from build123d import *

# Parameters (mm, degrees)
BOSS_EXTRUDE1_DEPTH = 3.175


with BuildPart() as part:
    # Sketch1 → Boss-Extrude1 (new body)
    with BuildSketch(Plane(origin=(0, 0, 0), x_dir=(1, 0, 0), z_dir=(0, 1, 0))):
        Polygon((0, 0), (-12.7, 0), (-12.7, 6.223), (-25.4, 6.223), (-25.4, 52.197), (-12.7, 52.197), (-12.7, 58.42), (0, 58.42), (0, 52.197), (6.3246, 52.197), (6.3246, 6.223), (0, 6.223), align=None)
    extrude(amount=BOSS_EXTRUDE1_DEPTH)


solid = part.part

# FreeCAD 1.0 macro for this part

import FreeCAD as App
import Part
import Sketcher
from FreeCAD import Vector
Q = App.Units.Quantity

doc = App.newDocument("Part")
body = doc.addObject("PartDesign::Body", "Body")

sketch1 = body.newObject("Sketcher::SketchObject", "Sketch")
sketch1.AttachmentSupport = (doc.getObject("XZ_Plane"), [""])
sketch1.MapMode = "FlatFace"
sketch1.addGeometry(Part.LineSegment(Vector(-13, 0, 0), Vector(0, 0, 0)), False)
sketch1.addGeometry(Part.LineSegment(Vector(0, 0, 0), Vector(0, -6, 0)), False)
sketch1.addGeometry(Part.LineSegment(Vector(0, -6, 0), Vector(6, -6, 0)), False)
sketch1.addGeometry(Part.LineSegment(Vector(6, -6, 0), Vector(6, -52, 0)), False)
sketch1.addGeometry(Part.LineSegment(Vector(6, -52, 0), Vector(0, -52, 0)), False)
sketch1.addGeometry(Part.LineSegment(Vector(0, -52, 0), Vector(0, -58, 0)), False)
sketch1.addGeometry(Part.LineSegment(Vector(0, -58, 0), Vector(-13, -58, 0)), False)
sketch1.addGeometry(Part.LineSegment(Vector(-13, -58, 0), Vector(-13, -52, 0)), False)
sketch1.addGeometry(Part.LineSegment(Vector(-13, -52, 0), Vector(-25, -52, 0)), False)
sketch1.addGeometry(Part.LineSegment(Vector(-25, -52, 0), Vector(-25, -6, 0)), False)
sketch1.addGeometry(Part.LineSegment(Vector(-25, -6, 0), Vector(-13, -6, 0)), False)
sketch1.addGeometry(Part.LineSegment(Vector(-13, -6, 0), Vector(-13, 0, 0)), False)
sketch1.addConstraint(Sketcher.Constraint("Coincident", 0, 2, 1, 1))
sketch1.addConstraint(Sketcher.Constraint("Coincident", 1, 2, 2, 1))
sketch1.addConstraint(Sketcher.Constraint("Coincident", 2, 2, 3, 1))
sketch1.addConstraint(Sketcher.Constraint("Coincident", 3, 2, 4, 1))
sketch1.addConstraint(Sketcher.Constraint("Coincident", 4, 2, 5, 1))
sketch1.addConstraint(Sketcher.Constraint("Coincident", 5, 2, 6, 1))
sketch1.addConstraint(Sketcher.Constraint("Coincident", 6, 2, 7, 1))
sketch1.addConstraint(Sketcher.Constraint("Coincident", 7, 2, 8, 1))
sketch1.addConstraint(Sketcher.Constraint("Coincident", 8, 2, 9, 1))
sketch1.addConstraint(Sketcher.Constraint("Coincident", 9, 2, 10, 1))
sketch1.addConstraint(Sketcher.Constraint("Coincident", 10, 2, 11, 1))
sketch1.addConstraint(Sketcher.Constraint("Coincident", 11, 2, 0, 1))
sketch1.addConstraint(Sketcher.Constraint("Horizontal", 0))
sketch1.addConstraint(Sketcher.Constraint("Vertical", 1))
sketch1.addConstraint(Sketcher.Constraint("Horizontal", 2))
sketch1.addConstraint(Sketcher.Constraint("Vertical", 3))
sketch1.addConstraint(Sketcher.Constraint("Horizontal", 4))
sketch1.addConstraint(Sketcher.Constraint("Vertical", 5))
sketch1.addConstraint(Sketcher.Constraint("Horizontal", 6))
sketch1.addConstraint(Sketcher.Constraint("Vertical", 7))
sketch1.addConstraint(Sketcher.Constraint("Horizontal", 8))
sketch1.addConstraint(Sketcher.Constraint("Vertical", 9))
sketch1.addConstraint(Sketcher.Constraint("Horizontal", 10))
sketch1.addConstraint(Sketcher.Constraint("Vertical", 11))
sketch1.addConstraint(Sketcher.Constraint("Coincident", 0, 2, -1, 1))
sketch1.addConstraint(Sketcher.Constraint("PointOnObject", 4, 2, -2))
sketch1.addConstraint(Sketcher.Constraint("Horizontal", 4, 2, 7, 2))
sketch1.addConstraint(Sketcher.Constraint("Horizontal", 2, 2, 9, 2))
sketch1.addConstraint(Sketcher.Constraint("Vertical", 7, 2, 10, 2))
sketch1.addConstraint(Sketcher.Constraint("Equal", 6, 8))
sketch1.addConstraint(Sketcher.Constraint("Equal", 1, 5))
sketch1.addConstraint(Sketcher.Constraint("DistanceX", 0, 1, 0, 2, Q("0.5 in")))
sketch1.addConstraint(Sketcher.Constraint("DistanceY", 3, 2, 3, 1, Q("1.81 in")))
sketch1.addConstraint(Sketcher.Constraint("DistanceY", 5, 2, -1, 1, Q("2.3 in")))
sketch1.addConstraint(Sketcher.Constraint("DistanceX", 2, 1, 2, 2, Q("0.249 in")))
pad1 = body.newObject("PartDesign::Pad", "Pad")
pad1.Profile = sketch1
pad1.Length = Q("0.125 in")
pad1.Reversed = True

doc.recompute()
